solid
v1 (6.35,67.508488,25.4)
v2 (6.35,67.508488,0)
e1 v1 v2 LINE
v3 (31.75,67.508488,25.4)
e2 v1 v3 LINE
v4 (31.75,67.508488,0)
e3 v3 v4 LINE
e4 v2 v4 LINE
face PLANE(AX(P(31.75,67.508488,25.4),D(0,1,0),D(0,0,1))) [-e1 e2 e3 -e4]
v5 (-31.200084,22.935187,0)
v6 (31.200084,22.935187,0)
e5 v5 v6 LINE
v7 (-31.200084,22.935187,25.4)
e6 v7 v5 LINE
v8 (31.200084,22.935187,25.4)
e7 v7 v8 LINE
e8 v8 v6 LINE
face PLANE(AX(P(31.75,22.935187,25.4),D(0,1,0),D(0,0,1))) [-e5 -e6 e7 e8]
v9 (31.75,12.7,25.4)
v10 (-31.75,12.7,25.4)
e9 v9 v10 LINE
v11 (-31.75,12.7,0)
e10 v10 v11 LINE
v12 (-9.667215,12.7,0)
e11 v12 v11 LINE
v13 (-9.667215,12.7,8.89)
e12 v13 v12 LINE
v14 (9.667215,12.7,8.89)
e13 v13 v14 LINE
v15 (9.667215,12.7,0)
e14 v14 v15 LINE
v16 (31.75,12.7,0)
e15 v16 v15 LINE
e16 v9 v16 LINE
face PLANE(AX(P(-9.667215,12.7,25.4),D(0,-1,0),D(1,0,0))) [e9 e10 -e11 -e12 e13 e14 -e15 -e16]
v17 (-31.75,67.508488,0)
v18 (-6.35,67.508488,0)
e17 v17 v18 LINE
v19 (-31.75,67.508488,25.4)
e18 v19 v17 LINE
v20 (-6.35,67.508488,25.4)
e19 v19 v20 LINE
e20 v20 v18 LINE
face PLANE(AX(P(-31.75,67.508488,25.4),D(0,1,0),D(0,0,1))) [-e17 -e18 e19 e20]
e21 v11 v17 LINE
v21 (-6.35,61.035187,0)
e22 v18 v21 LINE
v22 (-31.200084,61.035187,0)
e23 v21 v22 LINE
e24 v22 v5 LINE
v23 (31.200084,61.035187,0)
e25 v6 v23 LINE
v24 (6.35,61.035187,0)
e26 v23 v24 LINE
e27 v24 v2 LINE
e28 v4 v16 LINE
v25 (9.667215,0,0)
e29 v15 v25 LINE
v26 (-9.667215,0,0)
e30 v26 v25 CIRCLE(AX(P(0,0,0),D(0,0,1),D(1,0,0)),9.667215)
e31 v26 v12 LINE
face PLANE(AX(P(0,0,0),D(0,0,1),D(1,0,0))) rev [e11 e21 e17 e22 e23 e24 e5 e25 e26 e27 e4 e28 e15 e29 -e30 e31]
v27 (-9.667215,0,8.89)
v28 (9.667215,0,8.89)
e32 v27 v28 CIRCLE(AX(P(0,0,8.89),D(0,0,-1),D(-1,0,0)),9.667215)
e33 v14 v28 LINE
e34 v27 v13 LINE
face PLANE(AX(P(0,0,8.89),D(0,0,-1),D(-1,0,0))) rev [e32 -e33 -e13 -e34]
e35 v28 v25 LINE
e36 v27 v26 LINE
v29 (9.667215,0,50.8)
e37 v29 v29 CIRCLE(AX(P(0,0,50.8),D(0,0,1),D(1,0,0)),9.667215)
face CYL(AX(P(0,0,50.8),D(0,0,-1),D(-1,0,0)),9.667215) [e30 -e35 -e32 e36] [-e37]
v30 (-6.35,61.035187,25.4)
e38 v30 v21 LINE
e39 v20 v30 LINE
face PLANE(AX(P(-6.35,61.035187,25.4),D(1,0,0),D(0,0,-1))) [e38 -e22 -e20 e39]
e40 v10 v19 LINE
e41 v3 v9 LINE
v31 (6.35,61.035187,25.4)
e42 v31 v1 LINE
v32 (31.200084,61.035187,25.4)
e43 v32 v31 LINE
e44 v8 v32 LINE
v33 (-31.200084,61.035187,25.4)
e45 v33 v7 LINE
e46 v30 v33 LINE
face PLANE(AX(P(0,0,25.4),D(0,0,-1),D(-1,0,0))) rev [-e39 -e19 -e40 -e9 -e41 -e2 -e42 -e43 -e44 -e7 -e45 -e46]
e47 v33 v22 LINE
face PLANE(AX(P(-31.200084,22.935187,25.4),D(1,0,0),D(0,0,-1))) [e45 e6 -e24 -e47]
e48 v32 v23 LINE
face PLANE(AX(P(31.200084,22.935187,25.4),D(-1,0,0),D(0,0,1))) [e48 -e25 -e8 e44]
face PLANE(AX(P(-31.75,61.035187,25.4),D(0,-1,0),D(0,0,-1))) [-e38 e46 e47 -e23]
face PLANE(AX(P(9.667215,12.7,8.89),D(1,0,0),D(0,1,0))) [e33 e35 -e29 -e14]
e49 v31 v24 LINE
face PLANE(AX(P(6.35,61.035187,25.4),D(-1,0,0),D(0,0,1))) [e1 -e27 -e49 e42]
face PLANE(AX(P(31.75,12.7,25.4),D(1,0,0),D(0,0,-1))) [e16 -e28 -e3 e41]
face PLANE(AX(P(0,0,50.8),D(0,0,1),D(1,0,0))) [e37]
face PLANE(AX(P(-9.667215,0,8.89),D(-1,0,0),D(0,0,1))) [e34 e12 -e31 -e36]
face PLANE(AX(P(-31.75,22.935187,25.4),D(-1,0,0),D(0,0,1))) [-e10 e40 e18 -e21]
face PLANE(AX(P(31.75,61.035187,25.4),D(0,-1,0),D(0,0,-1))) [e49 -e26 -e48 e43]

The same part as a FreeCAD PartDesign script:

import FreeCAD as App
import Part
import Sketcher
Q = App.Units.Quantity

doc = App.newDocument("Part")
params = doc.addObject("Spreadsheet::Sheet", "Params")
for row, (alias, value) in enumerate([
    ("pad1_length", "2 in"),
    ("sketch2_height", "0.5 in"),
    ("pad2_length", "0.35 in"),
    ("sketch3_width", "2.5 in"),
    ("pad3_length", "1 in"),
    ("sketch4_height", "1.5 in"),
    ("pad4_length", "1 in"),
    ("sketch5_width", "1 in"),
    ("pad5_length", "1 in"),
], start=1):
    params.set(f"A{row}", alias)
    params.set(f"B{row}", "=" + value)
    params.setAlias(f"B{row}", alias)

body = doc.addObject("PartDesign::Body", "Body")

sketch1 = body.newObject("Sketcher::SketchObject", "Sketch")
sketch1.AttachmentSupport = (doc.getObject("XY_Plane"), [""])
sketch1.MapMode = "FlatFace"
sketch1.addGeometry(Part.Circle(App.Vector(0, 0, 0), App.Vector(0, 0, 1), 9.667215), False)
sketch1.addConstraint([
    Sketcher.Constraint("Coincident", 0, 3, -1, 1),
    Sketcher.Constraint("Diameter", 0, Q("19.33443 mm")),
])
pad1 = body.newObject("PartDesign::Pad", "Pad")
pad1.Profile = sketch1
pad1.setExpression("Length", "Params.pad1_length")

sketch2 = body.newObject("Sketcher::SketchObject", "Sketch001")
sketch2.AttachmentSupport = (doc.getObject("XY_Plane"), [""])
sketch2.MapMode = "FlatFace"
sketch2.addGeometry([
    Part.LineSegment(App.Vector(9.667215, 12.7, 0), App.Vector(9.667215, 0, 0)),
    Part.LineSegment(App.Vector(9.667215, 0, 0), App.Vector(-9.667215, 0, 0)),
    Part.LineSegment(App.Vector(-9.667215, 0, 0), App.Vector(-9.667215, 12.7, 0)),
    Part.LineSegment(App.Vector(-9.667215, 12.7, 0), App.Vector(9.667215, 12.7, 0)),
], False)
sketch2.addConstraint([
    Sketcher.Constraint("Coincident", 0, 2, 1, 1),
    Sketcher.Constraint("Coincident", 1, 2, 2, 1),
    Sketcher.Constraint("Coincident", 2, 2, 3, 1),
    Sketcher.Constraint("Coincident", 3, 2, 0, 1),
    Sketcher.Constraint("Vertical", 0),
    Sketcher.Constraint("Horizontal", 1),
    Sketcher.Constraint("Vertical", 2),
    Sketcher.Constraint("Horizontal", 3),
    Sketcher.Constraint("Symmetric", 0, 2, 1, 2, -1, 1),
    Sketcher.Constraint("DistanceY", 0, 2, 0, 1, Q("0.5 in")),
    Sketcher.Constraint("DistanceX", 1, 2, 1, 1, Q("19.33443 mm")),
])
sketch2.setExpression("Constraints[9]", "Params.sketch2_height")
pad2 = body.newObject("PartDesign::Pad", "Pad001")
pad2.Profile = sketch2
pad2.setExpression("Length", "Params.pad2_length")

sketch3 = body.newObject("Sketcher::SketchObject", "Sketch002")
sketch3.AttachmentSupport = (doc.getObject("XY_Plane"), [""])
sketch3.MapMode = "FlatFace"
sketch3.addGeometry([
    Part.LineSegment(App.Vector(31.75, 22.935187, 0), App.Vector(31.75, 12.7, 0)),
    Part.LineSegment(App.Vector(31.75, 12.7, 0), App.Vector(-31.75, 12.7, 0)),
    Part.LineSegment(App.Vector(-31.75, 12.7, 0), App.Vector(-31.75, 22.935187, 0)),
    Part.LineSegment(App.Vector(-31.75, 22.935187, 0), App.Vector(31.75, 22.935187, 0)),
], False)
sketch3.addConstraint([
    Sketcher.Constraint("Coincident", 0, 2, 1, 1),
    Sketcher.Constraint("Coincident", 1, 2, 2, 1),
    Sketcher.Constraint("Coincident", 2, 2, 3, 1),
    Sketcher.Constraint("Coincident", 3, 2, 0, 1),
    Sketcher.Constraint("Vertical", 0),
    Sketcher.Constraint("Horizontal", 1),
    Sketcher.Constraint("Vertical", 2),
    Sketcher.Constraint("Horizontal", 3),
    Sketcher.Constraint("DistanceX", 1, 2, 1, 1, Q("2.5 in")),
    Sketcher.Constraint("DistanceY", -1, 1, 0, 2, Q("0.5 in")),
    Sketcher.Constraint("DistanceX", -1, 1, 0, 2, Q("1.25 in")),
    Sketcher.Constraint("DistanceY", 0, 2, 0, 1, Q("10.235187 mm")),
])
sketch3.setExpression("Constraints[8]", "Params.sketch3_width")
pad3 = body.newObject("PartDesign::Pad", "Pad002")
pad3.Profile = sketch3
pad3.setExpression("Length", "Params.pad3_length")

sketch4 = body.newObject("Sketcher::SketchObject", "Sketch003")
sketch4.AttachmentSupport = (doc.getObject("XY_Plane"), [""])
sketch4.MapMode = "FlatFace"
sketch4.addGeometry([
    Part.LineSegment(App.Vector(-31.200084, 61.035187, 0), App.Vector(-31.200084, 22.935187, 0)),
    Part.LineSegment(App.Vector(-31.200084, 22.935187, 0), App.Vector(-31.75, 22.935187, 0)),
    Part.LineSegment(App.Vector(-31.75, 22.935187, 0), App.Vector(-31.75, 61.035187, 0)),
    Part.LineSegment(App.Vector(-31.75, 61.035187, 0), App.Vector(-31.200084, 61.035187, 0)),
    Part.LineSegment(App.Vector(31.75, 61.035187, 0), App.Vector(31.75, 22.935187, 0)),
    Part.LineSegment(App.Vector(31.75, 22.935187, 0), App.Vector(31.200084, 22.935187, 0)),
    Part.LineSegment(App.Vector(31.200084, 22.935187, 0), App.Vector(31.200084, 61.035187, 0)),
    Part.LineSegment(App.Vector(31.200084, 61.035187, 0), App.Vector(31.75, 61.035187, 0)),
], False)
sketch4.addConstraint([
    Sketcher.Constraint("Coincident", 0, 2, 1, 1),
    Sketcher.Constraint("Coincident", 1, 2, 2, 1),
    Sketcher.Constraint("Coincident", 2, 2, 3, 1),
    Sketcher.Constraint("Coincident", 3, 2, 0, 1),
    Sketcher.Constraint("Coincident", 4, 2, 5, 1),
    Sketcher.Constraint("Coincident", 5, 2, 6, 1),
    Sketcher.Constraint("Coincident", 6, 2, 7, 1),
    Sketcher.Constraint("Coincident", 7, 2, 4, 1),
    Sketcher.Constraint("Vertical", 0),
    Sketcher.Constraint("Horizontal", 1),
    Sketcher.Constraint("Vertical", 2),
    Sketcher.Constraint("Horizontal", 3),
    Sketcher.Constraint("Vertical", 4),
    Sketcher.Constraint("Horizontal", 5),
    Sketcher.Constraint("Vertical", 6),
    Sketcher.Constraint("Horizontal", 7),
    Sketcher.Constraint("Symmetric", 1, 2, 4, 2, -2),
    Sketcher.Constraint("Symmetric", 3, 2, 6, 2, -2),
    Sketcher.Constraint("DistanceY", 0, 2, 0, 1, Q("1.5 in")),
    Sketcher.Constraint("DistanceX", 1, 2, 4, 2, Q("2.5 in")),
    Sketcher.Constraint("DistanceX", 1, 2, 1, 1, Q("0.549916 mm")),
    Sketcher.Constraint("DistanceY", -1, 1, 0, 2, Q("22.935187 mm")),
])
sketch4.setExpression("Constraints[18]", "Params.sketch4_height")
pad4 = body.newObject("PartDesign::Pad", "Pad003")
pad4.Profile = sketch4
pad4.setExpression("Length", "Params.pad4_length")

sketch5 = body.newObject("Sketcher::SketchObject", "Sketch004")
sketch5.AttachmentSupport = (doc.getObject("XY_Plane"), [""])
sketch5.MapMode = "FlatFace"
sketch5.addGeometry([
    Part.LineSegment(App.Vector(-6.35, 67.508488, 0), App.Vector(-6.35, 61.035187, 0)),
    Part.LineSegment(App.Vector(-6.35, 61.035187, 0), App.Vector(-31.75, 61.035187, 0)),
    Part.LineSegment(App.Vector(-31.75, 61.035187, 0), App.Vector(-31.75, 67.508488, 0)),
    Part.LineSegment(App.Vector(-31.75, 67.508488, 0), App.Vector(-6.35, 67.508488, 0)),
    Part.LineSegment(App.Vector(31.75, 67.508488, 0), App.Vector(31.75, 61.035187, 0)),
    Part.LineSegment(App.Vector(31.75, 61.035187, 0), App.Vector(6.35, 61.035187, 0)),
    Part.LineSegment(App.Vector(6.35, 61.035187, 0), App.Vector(6.35, 67.508488, 0)),
    Part.LineSegment(App.Vector(6.35, 67.508488, 0), App.Vector(31.75, 67.508488, 0)),
], False)
sketch5.addConstraint([
    Sketcher.Constraint("Coincident", 0, 2, 1, 1),
    Sketcher.Constraint("Coincident", 1, 2, 2, 1),
    Sketcher.Constraint("Coincident", 2, 2, 3, 1),
    Sketcher.Constraint("Coincident", 3, 2, 0, 1),
    Sketcher.Constraint("Coincident", 4, 2, 5, 1),
    Sketcher.Constraint("Coincident", 5, 2, 6, 1),
    Sketcher.Constraint("Coincident", 6, 2, 7, 1),
    Sketcher.Constraint("Coincident", 7, 2, 4, 1),
    Sketcher.Constraint("Vertical", 0),
    Sketcher.Constraint("Horizontal", 1),
    Sketcher.Constraint("Vertical", 2),
    Sketcher.Constraint("Horizontal", 3),
    Sketcher.Constraint("Vertical", 4),
    Sketcher.Constraint("Horizontal", 5),
    Sketcher.Constraint("Vertical", 6),
    Sketcher.Constraint("Horizontal", 7),
    Sketcher.Constraint("Symmetric", 1, 2, 4, 2, -2),
    Sketcher.Constraint("Symmetric", 3, 2, 6, 2, -2),
    Sketcher.Constraint("DistanceX", 1, 2, 1, 1, Q("1 in")),
    Sketcher.Constraint("DistanceX", 0, 2, 4, 2, Q("1.5 in")),
    Sketcher.Constraint("DistanceY", 0, 2, 0, 1, Q("6.473301 mm")),
    Sketcher.Constraint("DistanceY", -1, 1, 2, 2, Q("67.508488 mm")),
])
sketch5.setExpression("Constraints[18]", "Params.sketch5_width")
pad5 = body.newObject("PartDesign::Pad", "Pad004")
pad5.Profile = sketch5
pad5.setExpression("Length", "Params.pad5_length")

doc.recompute()
